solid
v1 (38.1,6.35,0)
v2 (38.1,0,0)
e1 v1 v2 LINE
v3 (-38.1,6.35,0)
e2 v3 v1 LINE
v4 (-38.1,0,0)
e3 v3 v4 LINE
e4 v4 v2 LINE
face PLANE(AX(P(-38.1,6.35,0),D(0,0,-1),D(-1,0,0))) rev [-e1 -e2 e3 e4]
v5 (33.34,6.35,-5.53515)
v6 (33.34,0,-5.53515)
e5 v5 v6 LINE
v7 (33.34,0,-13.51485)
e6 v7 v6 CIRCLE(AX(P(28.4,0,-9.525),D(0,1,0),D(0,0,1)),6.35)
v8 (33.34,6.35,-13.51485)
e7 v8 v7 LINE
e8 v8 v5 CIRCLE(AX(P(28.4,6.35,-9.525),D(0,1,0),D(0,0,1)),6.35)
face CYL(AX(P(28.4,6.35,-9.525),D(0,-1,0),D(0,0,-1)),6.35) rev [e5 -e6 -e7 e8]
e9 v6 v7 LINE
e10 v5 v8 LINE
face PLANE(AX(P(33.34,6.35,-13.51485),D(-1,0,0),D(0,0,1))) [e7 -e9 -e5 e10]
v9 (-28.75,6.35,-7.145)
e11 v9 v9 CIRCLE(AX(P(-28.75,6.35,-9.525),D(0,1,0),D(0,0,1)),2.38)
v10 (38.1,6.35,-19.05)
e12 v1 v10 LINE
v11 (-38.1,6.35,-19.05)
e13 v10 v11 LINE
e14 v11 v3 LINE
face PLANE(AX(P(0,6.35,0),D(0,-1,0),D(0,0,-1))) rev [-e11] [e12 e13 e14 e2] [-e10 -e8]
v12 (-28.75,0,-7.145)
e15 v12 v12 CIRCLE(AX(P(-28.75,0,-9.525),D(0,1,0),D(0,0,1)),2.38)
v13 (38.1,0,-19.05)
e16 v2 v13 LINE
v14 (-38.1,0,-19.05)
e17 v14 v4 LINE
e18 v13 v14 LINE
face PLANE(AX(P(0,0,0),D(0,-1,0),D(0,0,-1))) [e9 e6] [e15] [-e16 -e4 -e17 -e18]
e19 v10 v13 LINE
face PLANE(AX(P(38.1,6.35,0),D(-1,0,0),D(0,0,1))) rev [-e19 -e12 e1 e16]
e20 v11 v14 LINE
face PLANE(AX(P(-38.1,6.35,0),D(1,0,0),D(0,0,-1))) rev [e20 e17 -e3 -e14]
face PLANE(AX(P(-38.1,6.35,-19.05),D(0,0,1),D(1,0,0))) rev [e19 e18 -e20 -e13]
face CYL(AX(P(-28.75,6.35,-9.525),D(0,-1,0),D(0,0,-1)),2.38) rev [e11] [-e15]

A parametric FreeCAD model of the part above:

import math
import FreeCAD as App
import Part
import Sketcher
Q = App.Units.Quantity


def add_polygon(sketch, points):
    """Adds a closed chain of lines whose ends are joined by coincident constraints."""
    first, n = sketch.GeometryCount, len(points)
    for a, b in zip(points, points[1:] + points[:1]):
        sketch.addGeometry(Part.LineSegment(App.Vector(*a, 0), App.Vector(*b, 0)), False)
    for i in range(n):
        sketch.addConstraint(Sketcher.Constraint("Coincident", first + i, 2, first + (i + 1) % n, 1))

doc = App.newDocument("Part")
params = doc.addObject("Spreadsheet::Sheet", "Params")
for row, (alias, value) in enumerate([
    ("sketch1_width", "3 in"),
    ("sketch1_radius", "0.25 in"),
    ("sketch1_height", "0.75 in"),
    ("pad1_length", "0.25 in"),
], start=1):
    params.set(f"A{row}", alias)
    params.set(f"B{row}", "=" + value)
    params.setAlias(f"B{row}", alias)

body = doc.addObject("PartDesign::Body", "Body")

sketch1 = body.newObject("Sketcher::SketchObject", "Sketch")
sketch1.AttachmentSupport = (doc.getObject("XZ_Plane"), [""])
sketch1.MapMode = "FlatFace"
add_polygon(sketch1, [(-38.1, -19.05), (-38.1, 0), (38.1, 0), (38.1, -19.05)])
sketch1.addGeometry(Part.Circle(App.Vector(-28.75, -9.525, 0), App.Vector(0, 0, 1), 2.38), False)
sketch1.addGeometry(Part.ArcOfCircle(Part.Circle(App.Vector(28.4, -9.525, 0), App.Vector(0, 0, 1), 6.35), math.radians(38.926488), math.radians(321.073512)), False)
sketch1.addGeometry(Part.LineSegment(App.Vector(33.34, -13.51485, 0), App.Vector(33.34, -5.53515, 0)), False)
sketch1.addConstraint([
    Sketcher.Constraint("Coincident", 5, 1, 6, 2),
    Sketcher.Constraint("Coincident", 6, 1, 5, 2),
    Sketcher.Constraint("Vertical", 0),
    Sketcher.Constraint("Horizontal", 1),
    Sketcher.Constraint("Vertical", 2),
    Sketcher.Constraint("Horizontal", 3),
    Sketcher.Constraint("Vertical", 6),
    Sketcher.Constraint("Symmetric", 0, 2, 1, 2, -1, 1),
    Sketcher.Constraint("Horizontal", 4, 3, 5, 3),
    Sketcher.Constraint("DistanceX", 1, 1, 1, 2, Q("3 in")),
    Sketcher.Constraint("Radius", 5, Q("0.25 in")),
    Sketcher.Constraint("DistanceY", 0, 1, 0, 2, Q("0.75 in")),
    Sketcher.Constraint("Diameter", 4, Q("4.76 mm")),
    Sketcher.Constraint("DistanceX", 4, 3, 5, 3, Q("2.25 in")),
    Sketcher.Constraint("DistanceY", 4, 3, -1, 1, Q("0.375 in")),
    Sketcher.Constraint("DistanceY", 6, 1, 6, 2, Q("7.979699 mm")),
    Sketcher.Constraint("DistanceX", 4, 3, -1, 1, Q("28.75 mm")),
])
sketch1.setExpression("Constraints[13]", "Params.sketch1_width")
sketch1.setExpression("Constraints[14]", "Params.sketch1_radius")
sketch1.setExpression("Constraints[15]", "Params.sketch1_height")
pad1 = body.newObject("PartDesign::Pad", "Pad")
pad1.Profile = sketch1
pad1.setExpression("Length", "Params.pad1_length")
pad1.Reversed = True

doc.recompute()
